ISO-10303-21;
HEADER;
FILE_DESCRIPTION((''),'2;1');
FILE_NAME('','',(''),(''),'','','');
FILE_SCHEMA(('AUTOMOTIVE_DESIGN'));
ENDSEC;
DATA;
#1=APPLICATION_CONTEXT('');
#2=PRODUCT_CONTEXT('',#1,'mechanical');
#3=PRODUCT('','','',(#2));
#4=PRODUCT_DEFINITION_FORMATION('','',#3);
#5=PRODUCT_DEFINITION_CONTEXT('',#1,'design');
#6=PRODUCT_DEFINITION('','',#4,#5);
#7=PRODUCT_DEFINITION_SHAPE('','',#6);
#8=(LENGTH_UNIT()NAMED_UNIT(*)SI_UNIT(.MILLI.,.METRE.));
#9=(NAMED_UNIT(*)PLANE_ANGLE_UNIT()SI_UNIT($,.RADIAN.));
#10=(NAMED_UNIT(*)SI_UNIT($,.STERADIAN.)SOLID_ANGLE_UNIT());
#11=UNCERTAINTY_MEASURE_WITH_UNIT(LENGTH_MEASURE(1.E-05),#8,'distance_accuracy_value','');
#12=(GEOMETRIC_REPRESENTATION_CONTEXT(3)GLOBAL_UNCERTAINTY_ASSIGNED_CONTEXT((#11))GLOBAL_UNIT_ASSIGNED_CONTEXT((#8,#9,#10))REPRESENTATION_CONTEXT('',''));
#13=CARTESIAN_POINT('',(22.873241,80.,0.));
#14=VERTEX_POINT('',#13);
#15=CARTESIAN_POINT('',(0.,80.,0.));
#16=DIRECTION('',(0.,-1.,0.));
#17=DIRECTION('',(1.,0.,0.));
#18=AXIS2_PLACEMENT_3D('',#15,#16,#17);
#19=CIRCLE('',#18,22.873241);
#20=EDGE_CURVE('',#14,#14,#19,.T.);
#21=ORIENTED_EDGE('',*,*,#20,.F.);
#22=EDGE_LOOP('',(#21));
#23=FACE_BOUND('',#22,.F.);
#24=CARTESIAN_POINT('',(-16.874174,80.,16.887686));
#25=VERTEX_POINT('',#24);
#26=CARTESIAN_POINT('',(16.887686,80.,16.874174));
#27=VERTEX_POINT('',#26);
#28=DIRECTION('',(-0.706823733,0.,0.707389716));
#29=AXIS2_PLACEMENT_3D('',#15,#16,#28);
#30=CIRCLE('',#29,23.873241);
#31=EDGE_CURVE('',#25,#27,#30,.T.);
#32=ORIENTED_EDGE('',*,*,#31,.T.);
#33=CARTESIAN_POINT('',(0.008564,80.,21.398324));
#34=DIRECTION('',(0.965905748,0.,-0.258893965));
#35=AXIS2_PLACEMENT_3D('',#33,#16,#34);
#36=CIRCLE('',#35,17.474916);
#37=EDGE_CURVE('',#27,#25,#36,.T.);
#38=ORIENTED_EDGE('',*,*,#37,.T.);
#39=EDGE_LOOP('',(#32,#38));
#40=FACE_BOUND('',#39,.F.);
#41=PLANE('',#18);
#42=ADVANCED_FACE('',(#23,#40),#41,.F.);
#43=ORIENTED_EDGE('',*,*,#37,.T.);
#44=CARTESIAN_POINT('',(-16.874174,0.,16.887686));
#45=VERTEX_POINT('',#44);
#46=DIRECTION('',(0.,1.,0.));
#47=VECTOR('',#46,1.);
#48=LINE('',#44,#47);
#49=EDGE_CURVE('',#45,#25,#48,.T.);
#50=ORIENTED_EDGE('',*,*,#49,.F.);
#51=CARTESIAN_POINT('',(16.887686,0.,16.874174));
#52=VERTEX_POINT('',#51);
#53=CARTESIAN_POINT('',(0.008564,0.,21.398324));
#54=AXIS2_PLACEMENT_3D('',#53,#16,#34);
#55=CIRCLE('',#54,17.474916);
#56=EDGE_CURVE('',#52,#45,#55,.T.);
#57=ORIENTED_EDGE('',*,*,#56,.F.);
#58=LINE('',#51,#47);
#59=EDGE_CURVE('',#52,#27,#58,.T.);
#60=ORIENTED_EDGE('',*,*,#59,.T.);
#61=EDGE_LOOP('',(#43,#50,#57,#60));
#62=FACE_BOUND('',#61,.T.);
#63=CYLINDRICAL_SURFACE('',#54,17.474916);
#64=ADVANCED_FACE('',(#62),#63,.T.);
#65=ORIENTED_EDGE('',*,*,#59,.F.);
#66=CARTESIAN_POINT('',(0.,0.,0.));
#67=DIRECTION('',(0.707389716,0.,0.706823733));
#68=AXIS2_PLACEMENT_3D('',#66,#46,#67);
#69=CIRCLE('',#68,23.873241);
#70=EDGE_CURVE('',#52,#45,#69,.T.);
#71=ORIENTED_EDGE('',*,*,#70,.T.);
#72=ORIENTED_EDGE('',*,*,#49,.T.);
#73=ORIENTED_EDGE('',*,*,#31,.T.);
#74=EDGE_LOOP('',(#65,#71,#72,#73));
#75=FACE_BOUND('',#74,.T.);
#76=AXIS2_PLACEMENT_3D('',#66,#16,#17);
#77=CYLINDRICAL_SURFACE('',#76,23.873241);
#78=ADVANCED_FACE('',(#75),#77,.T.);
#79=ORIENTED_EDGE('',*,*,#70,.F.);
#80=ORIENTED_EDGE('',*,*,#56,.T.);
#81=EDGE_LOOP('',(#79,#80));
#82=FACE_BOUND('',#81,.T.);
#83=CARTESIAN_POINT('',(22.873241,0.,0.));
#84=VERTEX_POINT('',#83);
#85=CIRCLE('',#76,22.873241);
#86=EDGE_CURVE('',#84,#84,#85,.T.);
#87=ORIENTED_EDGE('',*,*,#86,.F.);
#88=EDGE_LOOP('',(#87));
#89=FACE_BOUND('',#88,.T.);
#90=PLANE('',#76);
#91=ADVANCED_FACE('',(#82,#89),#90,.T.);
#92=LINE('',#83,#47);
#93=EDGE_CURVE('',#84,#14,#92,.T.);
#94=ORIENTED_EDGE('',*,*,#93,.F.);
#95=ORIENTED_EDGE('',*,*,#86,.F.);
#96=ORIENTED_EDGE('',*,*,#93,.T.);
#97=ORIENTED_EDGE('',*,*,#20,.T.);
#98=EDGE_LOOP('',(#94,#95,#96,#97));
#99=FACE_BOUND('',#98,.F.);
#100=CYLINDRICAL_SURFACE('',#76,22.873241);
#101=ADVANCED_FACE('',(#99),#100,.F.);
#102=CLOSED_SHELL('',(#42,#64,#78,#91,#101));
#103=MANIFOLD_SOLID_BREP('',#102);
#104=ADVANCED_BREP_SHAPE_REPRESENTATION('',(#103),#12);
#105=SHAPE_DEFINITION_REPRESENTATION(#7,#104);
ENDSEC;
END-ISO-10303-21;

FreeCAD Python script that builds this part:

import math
import FreeCAD as App
import Part
import Sketcher
Q = App.Units.Quantity

doc = App.newDocument("Part")
body = doc.addObject("PartDesign::Body", "Body")

# Sketch on XZ plane
sketch1 = body.newObject("Sketcher::SketchObject", "Sketch")
sketch1.AttachmentSupport = (doc.getObject("XZ_Plane"), [""])
sketch1.MapMode = "FlatFace"
sketch1.addGeometry(Part.Circle(App.Vector(0, 0, 0), App.Vector(0, 0, 1), 24), False)
sketch1.addConstraint([
    Sketcher.Constraint("Coincident", 0, 3, -1, 1),
    Sketcher.Constraint("Diameter", 0, Q("47.746483 mm")),
])
pad1 = body.newObject("PartDesign::Pad", "Pad")
pad1.Profile = sketch1
pad1.Length = 80
pad1.Reversed = True

# Sketch on XZ plane
sketch2 = body.newObject("Sketcher::SketchObject", "Sketch001")
sketch2.AttachmentSupport = (doc.getObject("XZ_Plane"), [""])
sketch2.MapMode = "FlatFace"
sketch2.addGeometry(Part.Circle(App.Vector(0, 0, 0), App.Vector(0, 0, 1), 23), False)
sketch2.addConstraint([
    Sketcher.Constraint("Coincident", 0, 3, -1, 1),
    Sketcher.Constraint("Diameter", 0, Q("45.746483 mm")),
])
pocket1 = body.newObject("PartDesign::Pocket", "Pocket")
pocket1.Profile = sketch2
pocket1.Length = 80

# Sketch on XZ plane
sketch3 = body.newObject("Sketcher::SketchObject", "Sketch002")
sketch3.AttachmentSupport = (doc.getObject("XZ_Plane"), [""])
sketch3.MapMode = "FlatFace"
sketch3.addGeometry([
    Part.ArcOfCircle(Part.Circle(App.Vector(0, 0, 0), App.Vector(0, 0, 1), 24), math.radians(45), math.radians(135)),
    Part.ArcOfCircle(Part.Circle(App.Vector(0, 21, 0), App.Vector(0, 0, 1), 17), math.radians(-15), math.radians(195)),
], False)
sketch3.addConstraint([
    Sketcher.Constraint("Coincident", 0, 1, 1, 1),
    Sketcher.Constraint("Coincident", 1, 2, 0, 2),
    Sketcher.Constraint("Coincident", 0, 3, -1, 1),
    Sketcher.Constraint("Radius", 0, Q("23.873241 mm")),
    Sketcher.Constraint("Radius", 1, Q("17.474916 mm")),
    Sketcher.Constraint("DistanceX", 1, 3, 0, 1, Q("16.879122 mm")),
    Sketcher.Constraint("DistanceY", 1, 2, 1, 3, Q("4.510638 mm")),
])
pad2 = body.newObject("PartDesign::Pad", "Pad001")
pad2.Profile = sketch3
pad2.Length = 80
pad2.Reversed = True

doc.recompute()
